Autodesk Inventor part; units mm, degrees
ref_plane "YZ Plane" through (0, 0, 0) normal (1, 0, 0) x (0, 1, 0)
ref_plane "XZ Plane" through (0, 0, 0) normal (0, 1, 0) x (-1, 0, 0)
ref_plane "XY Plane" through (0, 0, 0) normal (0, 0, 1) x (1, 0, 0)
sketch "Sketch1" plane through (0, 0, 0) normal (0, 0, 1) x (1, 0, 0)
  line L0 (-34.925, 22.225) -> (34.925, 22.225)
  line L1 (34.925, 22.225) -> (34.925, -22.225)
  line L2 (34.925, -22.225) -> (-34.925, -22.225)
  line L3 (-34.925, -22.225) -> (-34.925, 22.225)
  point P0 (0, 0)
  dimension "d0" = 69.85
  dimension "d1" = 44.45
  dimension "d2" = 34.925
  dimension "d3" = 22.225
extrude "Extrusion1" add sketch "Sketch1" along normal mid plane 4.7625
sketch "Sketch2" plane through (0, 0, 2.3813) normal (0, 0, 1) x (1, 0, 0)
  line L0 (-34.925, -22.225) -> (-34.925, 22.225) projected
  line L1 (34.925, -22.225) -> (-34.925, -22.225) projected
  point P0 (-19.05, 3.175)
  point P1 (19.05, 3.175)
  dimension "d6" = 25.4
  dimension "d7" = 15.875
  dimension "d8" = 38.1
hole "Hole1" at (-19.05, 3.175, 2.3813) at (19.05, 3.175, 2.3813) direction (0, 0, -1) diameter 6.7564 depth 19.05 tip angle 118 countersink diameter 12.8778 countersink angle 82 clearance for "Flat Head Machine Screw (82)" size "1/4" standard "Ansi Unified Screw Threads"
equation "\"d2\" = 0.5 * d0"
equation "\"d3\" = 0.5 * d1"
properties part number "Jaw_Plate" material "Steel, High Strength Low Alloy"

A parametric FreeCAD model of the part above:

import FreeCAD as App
import Part
import Sketcher
Q = App.Units.Quantity

doc = App.newDocument("Part")
body = doc.addObject("PartDesign::Body", "Body")

# Sketch on XY plane
sketch1 = doc.addObject("Sketcher::SketchObject", "Sketch")
body.addObject(sketch1)
sketch1.AttachmentSupport = (doc.XY_Plane, [""])
sketch1.MapMode = "FlatFace"
sketch1.addGeometry(Part.LineSegment(App.Vector(35, 22, 0), App.Vector(-35, 22, 0)), False)
sketch1.addGeometry(Part.LineSegment(App.Vector(-35, 22, 0), App.Vector(-35, -22, 0)), False)
sketch1.addGeometry(Part.LineSegment(App.Vector(-35, -22, 0), App.Vector(35, -22, 0)), False)
sketch1.addGeometry(Part.LineSegment(App.Vector(35, -22, 0), App.Vector(35, 22, 0)), False)
sketch1.addConstraint(Sketcher.Constraint("Coincident", 0, 2, 1, 1))
sketch1.addConstraint(Sketcher.Constraint("Coincident", 1, 2, 2, 1))
sketch1.addConstraint(Sketcher.Constraint("Coincident", 2, 2, 3, 1))
sketch1.addConstraint(Sketcher.Constraint("Coincident", 3, 2, 0, 1))
sketch1.addConstraint(Sketcher.Constraint("Horizontal", 0))
sketch1.addConstraint(Sketcher.Constraint("Vertical", 1))
sketch1.addConstraint(Sketcher.Constraint("Horizontal", 2))
sketch1.addConstraint(Sketcher.Constraint("Vertical", 3))
sketch1.addConstraint(Sketcher.Constraint("Symmetric", 0, 2, 2, 2, -1, 1))
sketch1.addConstraint(Sketcher.Constraint("DistanceX", 0, 2, 0, 1, Q("2.75 in")))
sketch1.addConstraint(Sketcher.Constraint("DistanceY", 1, 2, 1, 1, Q("1.75 in")))
pad1 = doc.addObject("PartDesign::Pad", "Pad")
body.addObject(pad1)
pad1.Profile = sketch1
pad1.Length = Q("0.1875 in")
pad1.Midplane = True

# Sketch on XY plane
sketch2 = doc.addObject("Sketcher::SketchObject", "Sketch001")
body.addObject(sketch2)
sketch2.AttachmentSupport = (doc.XY_Plane, [""])
sketch2.MapMode = "FlatFace"
sketch2.AttachmentOffset = App.Placement(App.Vector(0, 0, 0.093752 * 25.4), App.Rotation())
sketch2.addGeometry(Part.Circle(App.Vector(-19.1, 3.2, 0), App.Vector(0, 0, 1), 3.4), False)
sketch2.addGeometry(Part.Circle(App.Vector(19.1, 3.2, 0), App.Vector(0, 0, 1), 3.4), False)
sketch2.addConstraint(Sketcher.Constraint("Equal", 0, 1))
sketch2.addConstraint(Sketcher.Constraint("Symmetric", 0, 3, 1, 3, -2))
sketch2.addConstraint(Sketcher.Constraint("Diameter", 0, Q("0.266 in")))
sketch2.addConstraint(Sketcher.Constraint("DistanceX", 0, 3, 1, 3, Q("1.5 in")))
sketch2.addConstraint(Sketcher.Constraint("DistanceY", -1, 1, 0, 3, Q("0.125 in")))
doc.recompute()
hole = doc.addObject("PartDesign::Hole", "Hole")
body.addObject(hole)
hole.Profile = sketch2
hole.ThreadType = "None"
hole.Diameter = Q("0.266 in")
hole.DepthType = "Dimension"
hole.Depth = Q("0.75 in")
hole.DrillPoint = "Angled"
hole.DrillPointAngle = 118
hole.HoleCutType = "Countersink"
hole.HoleCutDiameter = Q("0.507 in")
hole.HoleCutCountersinkAngle = 82

doc.recompute()
